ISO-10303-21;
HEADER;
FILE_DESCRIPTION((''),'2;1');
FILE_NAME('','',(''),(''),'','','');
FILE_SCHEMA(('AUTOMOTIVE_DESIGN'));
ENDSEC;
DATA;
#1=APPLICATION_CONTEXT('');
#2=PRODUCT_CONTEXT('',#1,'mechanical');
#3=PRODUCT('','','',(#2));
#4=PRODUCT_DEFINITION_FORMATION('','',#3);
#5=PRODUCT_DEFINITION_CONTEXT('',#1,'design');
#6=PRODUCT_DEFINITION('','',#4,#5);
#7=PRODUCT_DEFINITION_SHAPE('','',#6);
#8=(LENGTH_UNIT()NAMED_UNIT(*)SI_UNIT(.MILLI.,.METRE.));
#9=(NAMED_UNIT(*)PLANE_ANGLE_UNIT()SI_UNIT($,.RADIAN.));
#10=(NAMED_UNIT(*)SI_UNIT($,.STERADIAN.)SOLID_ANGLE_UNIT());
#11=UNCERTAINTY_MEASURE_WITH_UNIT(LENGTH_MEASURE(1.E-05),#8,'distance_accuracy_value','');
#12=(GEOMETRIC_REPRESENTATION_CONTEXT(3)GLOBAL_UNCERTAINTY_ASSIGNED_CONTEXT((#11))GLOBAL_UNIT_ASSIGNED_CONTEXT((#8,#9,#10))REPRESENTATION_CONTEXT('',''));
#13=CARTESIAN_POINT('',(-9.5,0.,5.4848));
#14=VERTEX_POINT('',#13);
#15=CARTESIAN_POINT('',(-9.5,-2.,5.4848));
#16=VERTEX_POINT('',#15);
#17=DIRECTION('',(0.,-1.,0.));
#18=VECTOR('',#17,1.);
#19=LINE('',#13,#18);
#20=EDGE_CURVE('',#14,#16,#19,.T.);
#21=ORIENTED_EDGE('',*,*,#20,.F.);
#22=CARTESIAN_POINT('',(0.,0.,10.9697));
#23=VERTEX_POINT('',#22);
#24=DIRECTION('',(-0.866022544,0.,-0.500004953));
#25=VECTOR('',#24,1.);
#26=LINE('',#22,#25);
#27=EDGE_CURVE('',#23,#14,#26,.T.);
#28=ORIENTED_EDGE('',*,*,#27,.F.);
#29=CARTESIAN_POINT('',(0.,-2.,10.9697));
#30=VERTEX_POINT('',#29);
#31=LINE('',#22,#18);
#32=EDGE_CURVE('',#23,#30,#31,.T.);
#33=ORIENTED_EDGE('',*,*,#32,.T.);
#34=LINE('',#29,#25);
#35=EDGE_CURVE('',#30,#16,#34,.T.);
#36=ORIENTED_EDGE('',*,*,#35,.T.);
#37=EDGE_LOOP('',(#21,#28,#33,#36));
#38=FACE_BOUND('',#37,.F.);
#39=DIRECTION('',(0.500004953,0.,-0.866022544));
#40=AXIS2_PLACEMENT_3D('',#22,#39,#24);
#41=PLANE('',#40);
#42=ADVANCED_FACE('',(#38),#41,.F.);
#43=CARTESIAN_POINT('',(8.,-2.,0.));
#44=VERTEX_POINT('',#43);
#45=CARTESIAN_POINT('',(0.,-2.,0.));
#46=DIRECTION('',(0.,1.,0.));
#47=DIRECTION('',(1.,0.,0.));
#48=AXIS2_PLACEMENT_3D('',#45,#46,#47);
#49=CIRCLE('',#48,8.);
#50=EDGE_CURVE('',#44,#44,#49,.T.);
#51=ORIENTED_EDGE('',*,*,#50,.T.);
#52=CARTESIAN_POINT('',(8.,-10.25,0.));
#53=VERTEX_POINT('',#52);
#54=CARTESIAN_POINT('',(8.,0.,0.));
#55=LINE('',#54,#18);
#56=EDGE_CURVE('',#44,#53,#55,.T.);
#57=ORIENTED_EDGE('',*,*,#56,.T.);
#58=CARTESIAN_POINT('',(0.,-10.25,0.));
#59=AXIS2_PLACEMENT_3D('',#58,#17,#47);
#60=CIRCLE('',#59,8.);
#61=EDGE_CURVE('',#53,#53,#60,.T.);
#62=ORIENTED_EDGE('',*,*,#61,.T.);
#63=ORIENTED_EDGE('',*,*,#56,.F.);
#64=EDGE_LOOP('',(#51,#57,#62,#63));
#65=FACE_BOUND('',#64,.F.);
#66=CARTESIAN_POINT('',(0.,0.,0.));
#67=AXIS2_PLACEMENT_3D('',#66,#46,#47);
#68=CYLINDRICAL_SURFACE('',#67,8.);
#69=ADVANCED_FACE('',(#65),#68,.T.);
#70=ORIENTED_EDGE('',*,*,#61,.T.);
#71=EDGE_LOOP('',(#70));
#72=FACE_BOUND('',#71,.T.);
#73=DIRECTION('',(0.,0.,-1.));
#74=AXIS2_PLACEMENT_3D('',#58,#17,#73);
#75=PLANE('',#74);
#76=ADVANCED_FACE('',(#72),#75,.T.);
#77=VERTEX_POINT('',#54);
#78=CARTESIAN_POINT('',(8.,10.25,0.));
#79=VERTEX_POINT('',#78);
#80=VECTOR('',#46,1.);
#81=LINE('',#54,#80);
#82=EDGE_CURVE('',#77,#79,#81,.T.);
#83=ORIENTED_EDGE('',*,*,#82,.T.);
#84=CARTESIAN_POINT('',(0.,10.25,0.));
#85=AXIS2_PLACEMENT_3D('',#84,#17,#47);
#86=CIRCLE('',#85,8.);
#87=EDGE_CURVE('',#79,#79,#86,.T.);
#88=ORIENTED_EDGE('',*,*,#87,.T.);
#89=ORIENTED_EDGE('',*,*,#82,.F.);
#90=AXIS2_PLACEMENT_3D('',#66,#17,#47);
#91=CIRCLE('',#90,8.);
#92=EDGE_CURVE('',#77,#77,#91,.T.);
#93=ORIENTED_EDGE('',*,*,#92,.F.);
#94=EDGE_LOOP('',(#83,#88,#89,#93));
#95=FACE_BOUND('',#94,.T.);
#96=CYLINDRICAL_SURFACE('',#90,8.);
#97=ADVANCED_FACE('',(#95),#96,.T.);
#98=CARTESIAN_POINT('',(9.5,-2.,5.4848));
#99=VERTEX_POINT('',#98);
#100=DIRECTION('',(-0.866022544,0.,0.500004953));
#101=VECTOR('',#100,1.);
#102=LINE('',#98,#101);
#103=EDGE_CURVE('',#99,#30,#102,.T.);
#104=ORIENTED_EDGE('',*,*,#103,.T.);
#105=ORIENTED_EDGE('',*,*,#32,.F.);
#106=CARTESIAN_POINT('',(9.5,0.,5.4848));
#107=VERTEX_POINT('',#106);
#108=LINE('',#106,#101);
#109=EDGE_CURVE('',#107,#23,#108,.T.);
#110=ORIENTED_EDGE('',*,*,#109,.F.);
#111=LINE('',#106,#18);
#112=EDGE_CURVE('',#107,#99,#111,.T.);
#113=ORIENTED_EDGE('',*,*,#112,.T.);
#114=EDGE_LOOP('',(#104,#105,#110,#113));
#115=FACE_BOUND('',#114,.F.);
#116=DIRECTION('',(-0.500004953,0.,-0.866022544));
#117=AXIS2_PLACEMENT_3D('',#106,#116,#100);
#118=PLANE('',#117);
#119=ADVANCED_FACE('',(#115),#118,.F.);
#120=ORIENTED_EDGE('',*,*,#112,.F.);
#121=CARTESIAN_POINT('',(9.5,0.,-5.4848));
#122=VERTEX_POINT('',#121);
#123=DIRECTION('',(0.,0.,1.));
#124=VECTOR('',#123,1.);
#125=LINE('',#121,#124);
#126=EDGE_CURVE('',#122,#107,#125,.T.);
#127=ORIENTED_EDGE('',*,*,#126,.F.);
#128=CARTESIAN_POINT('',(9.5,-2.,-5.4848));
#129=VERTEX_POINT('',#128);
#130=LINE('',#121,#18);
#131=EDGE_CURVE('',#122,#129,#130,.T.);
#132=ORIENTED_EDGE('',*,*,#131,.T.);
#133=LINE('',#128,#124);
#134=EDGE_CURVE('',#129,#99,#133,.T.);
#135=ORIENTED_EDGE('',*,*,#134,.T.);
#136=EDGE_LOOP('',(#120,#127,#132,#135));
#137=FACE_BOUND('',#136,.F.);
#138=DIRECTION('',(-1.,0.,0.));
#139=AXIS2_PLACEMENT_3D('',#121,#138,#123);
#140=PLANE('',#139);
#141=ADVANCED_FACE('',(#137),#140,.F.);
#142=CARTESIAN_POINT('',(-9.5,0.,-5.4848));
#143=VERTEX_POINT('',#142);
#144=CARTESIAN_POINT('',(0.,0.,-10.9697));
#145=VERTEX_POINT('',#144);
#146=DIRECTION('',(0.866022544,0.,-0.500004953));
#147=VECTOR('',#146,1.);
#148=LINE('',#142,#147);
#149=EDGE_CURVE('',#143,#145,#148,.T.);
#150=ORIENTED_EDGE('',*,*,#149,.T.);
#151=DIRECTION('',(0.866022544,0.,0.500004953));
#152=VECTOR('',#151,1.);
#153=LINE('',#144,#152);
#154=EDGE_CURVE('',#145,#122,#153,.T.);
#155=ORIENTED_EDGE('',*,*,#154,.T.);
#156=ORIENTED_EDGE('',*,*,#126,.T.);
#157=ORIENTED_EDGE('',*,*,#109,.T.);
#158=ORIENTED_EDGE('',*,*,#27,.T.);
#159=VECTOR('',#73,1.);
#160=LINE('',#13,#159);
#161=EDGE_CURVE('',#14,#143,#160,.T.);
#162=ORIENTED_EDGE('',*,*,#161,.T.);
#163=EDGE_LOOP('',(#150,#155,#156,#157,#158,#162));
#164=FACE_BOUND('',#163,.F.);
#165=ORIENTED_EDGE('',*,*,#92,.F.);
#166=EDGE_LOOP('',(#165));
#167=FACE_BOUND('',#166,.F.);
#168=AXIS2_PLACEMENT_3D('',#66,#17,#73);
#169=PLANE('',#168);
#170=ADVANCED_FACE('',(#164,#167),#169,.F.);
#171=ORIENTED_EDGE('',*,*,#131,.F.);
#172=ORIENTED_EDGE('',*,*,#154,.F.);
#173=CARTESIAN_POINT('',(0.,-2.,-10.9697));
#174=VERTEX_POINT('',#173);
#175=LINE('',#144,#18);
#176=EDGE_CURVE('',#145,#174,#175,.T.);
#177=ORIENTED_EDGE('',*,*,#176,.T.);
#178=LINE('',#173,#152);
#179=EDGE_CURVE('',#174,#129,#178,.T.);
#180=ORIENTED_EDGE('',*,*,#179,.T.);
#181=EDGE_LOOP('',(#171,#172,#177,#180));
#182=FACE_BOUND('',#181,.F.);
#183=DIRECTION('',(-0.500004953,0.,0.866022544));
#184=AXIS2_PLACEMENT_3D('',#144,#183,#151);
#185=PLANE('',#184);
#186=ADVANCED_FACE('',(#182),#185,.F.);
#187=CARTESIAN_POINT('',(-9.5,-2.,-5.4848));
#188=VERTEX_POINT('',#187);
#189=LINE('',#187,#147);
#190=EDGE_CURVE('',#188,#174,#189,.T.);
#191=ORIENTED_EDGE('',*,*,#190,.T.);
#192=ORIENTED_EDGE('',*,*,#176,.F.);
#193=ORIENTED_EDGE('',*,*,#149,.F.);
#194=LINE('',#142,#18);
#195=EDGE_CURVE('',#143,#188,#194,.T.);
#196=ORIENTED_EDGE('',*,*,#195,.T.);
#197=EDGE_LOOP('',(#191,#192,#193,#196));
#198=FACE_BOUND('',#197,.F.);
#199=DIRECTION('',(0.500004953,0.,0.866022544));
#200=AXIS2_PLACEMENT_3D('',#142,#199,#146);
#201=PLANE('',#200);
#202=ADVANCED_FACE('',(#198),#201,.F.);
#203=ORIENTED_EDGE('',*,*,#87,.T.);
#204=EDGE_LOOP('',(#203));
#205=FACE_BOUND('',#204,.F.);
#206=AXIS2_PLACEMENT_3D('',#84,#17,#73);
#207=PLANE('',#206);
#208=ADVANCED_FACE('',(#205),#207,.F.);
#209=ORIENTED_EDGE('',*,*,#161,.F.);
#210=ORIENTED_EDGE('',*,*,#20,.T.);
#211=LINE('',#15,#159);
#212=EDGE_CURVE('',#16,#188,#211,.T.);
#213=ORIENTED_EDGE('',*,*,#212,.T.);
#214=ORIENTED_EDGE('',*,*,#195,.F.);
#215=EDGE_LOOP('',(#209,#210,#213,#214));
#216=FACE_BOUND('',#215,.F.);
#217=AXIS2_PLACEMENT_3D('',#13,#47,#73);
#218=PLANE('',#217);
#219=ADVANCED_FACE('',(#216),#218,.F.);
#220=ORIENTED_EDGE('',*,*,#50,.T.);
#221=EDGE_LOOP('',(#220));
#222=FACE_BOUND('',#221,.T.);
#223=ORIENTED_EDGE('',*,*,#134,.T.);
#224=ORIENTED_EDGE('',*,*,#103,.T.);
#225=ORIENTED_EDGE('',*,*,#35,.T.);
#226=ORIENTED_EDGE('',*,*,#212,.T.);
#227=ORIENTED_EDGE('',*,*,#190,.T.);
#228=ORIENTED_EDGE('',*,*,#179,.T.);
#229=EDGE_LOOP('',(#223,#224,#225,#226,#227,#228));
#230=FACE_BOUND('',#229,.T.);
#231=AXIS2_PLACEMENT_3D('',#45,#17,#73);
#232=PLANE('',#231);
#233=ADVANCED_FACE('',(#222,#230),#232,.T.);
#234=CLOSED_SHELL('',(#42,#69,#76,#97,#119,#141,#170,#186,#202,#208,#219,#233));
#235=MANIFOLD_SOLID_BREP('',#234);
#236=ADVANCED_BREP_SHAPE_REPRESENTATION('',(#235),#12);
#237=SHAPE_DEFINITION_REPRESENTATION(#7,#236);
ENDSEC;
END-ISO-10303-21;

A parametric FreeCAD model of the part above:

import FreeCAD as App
import Part
import Sketcher

V = App.Vector
Q = App.Units.Quantity


def add_polygon(sketch, points):
    """Adds a closed chain of lines whose ends are joined by coincident constraints."""
    first, n = sketch.GeometryCount, len(points)
    for a, b in zip(points, points[1:] + points[:1]):
        sketch.addGeometry(Part.LineSegment(App.Vector(*a, 0), App.Vector(*b, 0)), False)
    for i in range(n):
        sketch.addConstraint(Sketcher.Constraint("Coincident", first + i, 2, first + (i + 1) % n, 1))

doc = App.newDocument("Part")
body = doc.addObject("PartDesign::Body", "Body")

sketch1 = body.newObject("Sketcher::SketchObject", "Sketch")
sketch1.AttachmentSupport = (doc.getObject("XZ_Plane"), [""])
sketch1.MapMode = "FlatFace"
sketch1.addGeometry(Part.Circle(V(0, 0, 0), V(0, 0, 1), 8), False)
sketch1.addConstraint(Sketcher.Constraint("Coincident", 0, 3, -1, 1))
sketch1.addConstraint(Sketcher.Constraint("Diameter", 0, 16.0))
pad1 = body.newObject("PartDesign::Pad", "Pad")
pad1.Profile = sketch1
pad1.Length = 20.5
pad1.Midplane = True

sketch2 = body.newObject("Sketcher::SketchObject", "Sketch001")
sketch2.AttachmentSupport = (doc.getObject("XZ_Plane"), [""])
sketch2.MapMode = "FlatFace"
add_polygon(sketch2, [(9.5, 5.4848), (0, 10.9697), (-9.5, 5.4848), (-9.5, -5.4848), (0, -10.9697), (9.5, -5.4848)])
sketch2.addConstraint(Sketcher.Constraint("Vertical", 2))
sketch2.addConstraint(Sketcher.Constraint("Vertical", 5))
sketch2.addConstraint(Sketcher.Constraint("Symmetric", 0, 2, 3, 2, -1, 1))
sketch2.addConstraint(Sketcher.Constraint("Symmetric", 1, 2, 4, 2, -1, 1))
sketch2.addConstraint(Sketcher.Constraint("PointOnObject", 0, 2, -2))
sketch2.addConstraint(Sketcher.Constraint("Parallel", 0, 3))
sketch2.addConstraint(Sketcher.Constraint("Horizontal", 2, 2, 4, 2))
sketch2.addConstraint(Sketcher.Constraint("Angle", 0, Q("149.9997 deg")))
sketch2.addConstraint(Sketcher.Constraint("DistanceX", 2, 2, 4, 2, 19.0))
sketch2.addConstraint(Sketcher.Constraint("DistanceY", 2, 2, 2, 1, 10.9696))
pad2 = body.newObject("PartDesign::Pad", "Pad001")
pad2.Profile = sketch2
pad2.Length = 2

doc.recompute()
